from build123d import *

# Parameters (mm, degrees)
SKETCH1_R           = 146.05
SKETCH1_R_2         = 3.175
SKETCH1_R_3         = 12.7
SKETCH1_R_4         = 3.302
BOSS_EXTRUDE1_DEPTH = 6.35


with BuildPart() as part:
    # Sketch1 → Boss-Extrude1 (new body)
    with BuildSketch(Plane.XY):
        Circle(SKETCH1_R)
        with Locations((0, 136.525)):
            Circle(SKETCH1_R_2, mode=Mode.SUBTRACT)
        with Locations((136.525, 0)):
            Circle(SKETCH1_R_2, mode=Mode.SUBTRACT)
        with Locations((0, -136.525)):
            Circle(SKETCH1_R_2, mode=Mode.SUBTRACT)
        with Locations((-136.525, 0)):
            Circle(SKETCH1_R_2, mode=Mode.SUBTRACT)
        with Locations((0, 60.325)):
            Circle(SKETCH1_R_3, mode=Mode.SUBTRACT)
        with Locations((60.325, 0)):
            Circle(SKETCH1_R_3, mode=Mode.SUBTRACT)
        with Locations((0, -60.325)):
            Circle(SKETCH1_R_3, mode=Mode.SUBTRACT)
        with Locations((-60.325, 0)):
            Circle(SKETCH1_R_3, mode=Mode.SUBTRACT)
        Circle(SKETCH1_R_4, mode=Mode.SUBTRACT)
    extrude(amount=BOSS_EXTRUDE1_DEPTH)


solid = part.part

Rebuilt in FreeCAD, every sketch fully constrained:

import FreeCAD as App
import Part
import Sketcher
Q = App.Units.Quantity

doc = App.newDocument("Part")
body = doc.addObject("PartDesign::Body", "Body")

# Sketch on XY plane
sketch1 = body.newObject("Sketcher::SketchObject", "Sketch")
sketch1.AttachmentSupport = (doc.getObject("XY_Plane"), [""])
sketch1.MapMode = "FlatFace"
sketch1.addGeometry([
    Part.Circle(App.Vector(0, 0, 0), App.Vector(0, 0, 1), 146.1),  # 0
    Part.Circle(App.Vector(0, -136.5, 0), App.Vector(0, 0, 1), 3.2),  # 1
    Part.Circle(App.Vector(0, -60.3, 0), App.Vector(0, 0, 1), 12.7),  # 2
    Part.Circle(App.Vector(-136.5, 0, 0), App.Vector(0, 0, 1), 3.2),  # 3
    Part.Circle(App.Vector(-60.3, 0, 0), App.Vector(0, 0, 1), 12.7),  # 4
    Part.Circle(App.Vector(0, 0, 0), App.Vector(0, 0, 1), 3.3),  # 5
    Part.Circle(App.Vector(60.3, 0, 0), App.Vector(0, 0, 1), 12.7),  # 6
    Part.Circle(App.Vector(0, 60.3, 0), App.Vector(0, 0, 1), 12.7),  # 7
    Part.Circle(App.Vector(136.5, 0, 0), App.Vector(0, 0, 1), 3.2),  # 8
    Part.Circle(App.Vector(0, 136.5, 0), App.Vector(0, 0, 1), 3.2),  # 9
], False)
sketch1.addConstraint([
    Sketcher.Constraint("Coincident", 0, 3, -1, 1),
    Sketcher.Constraint("Coincident", 5, 3, -1, 1),
    Sketcher.Constraint("Equal", 1, 3),
    Sketcher.Constraint("Equal", 2, 4),
    Sketcher.Constraint("Equal", 4, 6),
    Sketcher.Constraint("Equal", 6, 7),
    Sketcher.Constraint("Equal", 3, 8),
    Sketcher.Constraint("Equal", 8, 9),
    Sketcher.Constraint("Symmetric", 4, 3, 6, 3, -1, 1),
    Sketcher.Constraint("Symmetric", 2, 3, 7, 3, -1, 1),
    Sketcher.Constraint("Symmetric", 3, 3, 8, 3, -1, 1),
    Sketcher.Constraint("Symmetric", 1, 3, 9, 3, -1, 1),
    Sketcher.Constraint("PointOnObject", 1, 3, -2),
    Sketcher.Constraint("PointOnObject", 2, 3, -2),
    Sketcher.Constraint("PointOnObject", 3, 3, -1),
    Sketcher.Constraint("PointOnObject", 4, 3, -1),
    Sketcher.Constraint("Diameter", 2, Q("1 in")),
    Sketcher.Constraint("Diameter", 0, Q("11.5 in")),
    Sketcher.Constraint("Diameter", 1, Q("0.25 in")),
    Sketcher.Constraint("Diameter", 5, Q("0.26 in")),
    Sketcher.Constraint("DistanceY", 1, 3, 2, 3, Q("3 in")),
    Sketcher.Constraint("DistanceX", 3, 3, 4, 3, Q("3 in")),
    Sketcher.Constraint("DistanceX", 4, 3, 6, 3, Q("4.75 in")),
    Sketcher.Constraint("DistanceY", 2, 3, 7, 3, Q("4.75 in")),
])
pad1 = body.newObject("PartDesign::Pad", "Pad")
pad1.Profile = sketch1
pad1.Length = Q("0.25 in")

doc.recompute()
